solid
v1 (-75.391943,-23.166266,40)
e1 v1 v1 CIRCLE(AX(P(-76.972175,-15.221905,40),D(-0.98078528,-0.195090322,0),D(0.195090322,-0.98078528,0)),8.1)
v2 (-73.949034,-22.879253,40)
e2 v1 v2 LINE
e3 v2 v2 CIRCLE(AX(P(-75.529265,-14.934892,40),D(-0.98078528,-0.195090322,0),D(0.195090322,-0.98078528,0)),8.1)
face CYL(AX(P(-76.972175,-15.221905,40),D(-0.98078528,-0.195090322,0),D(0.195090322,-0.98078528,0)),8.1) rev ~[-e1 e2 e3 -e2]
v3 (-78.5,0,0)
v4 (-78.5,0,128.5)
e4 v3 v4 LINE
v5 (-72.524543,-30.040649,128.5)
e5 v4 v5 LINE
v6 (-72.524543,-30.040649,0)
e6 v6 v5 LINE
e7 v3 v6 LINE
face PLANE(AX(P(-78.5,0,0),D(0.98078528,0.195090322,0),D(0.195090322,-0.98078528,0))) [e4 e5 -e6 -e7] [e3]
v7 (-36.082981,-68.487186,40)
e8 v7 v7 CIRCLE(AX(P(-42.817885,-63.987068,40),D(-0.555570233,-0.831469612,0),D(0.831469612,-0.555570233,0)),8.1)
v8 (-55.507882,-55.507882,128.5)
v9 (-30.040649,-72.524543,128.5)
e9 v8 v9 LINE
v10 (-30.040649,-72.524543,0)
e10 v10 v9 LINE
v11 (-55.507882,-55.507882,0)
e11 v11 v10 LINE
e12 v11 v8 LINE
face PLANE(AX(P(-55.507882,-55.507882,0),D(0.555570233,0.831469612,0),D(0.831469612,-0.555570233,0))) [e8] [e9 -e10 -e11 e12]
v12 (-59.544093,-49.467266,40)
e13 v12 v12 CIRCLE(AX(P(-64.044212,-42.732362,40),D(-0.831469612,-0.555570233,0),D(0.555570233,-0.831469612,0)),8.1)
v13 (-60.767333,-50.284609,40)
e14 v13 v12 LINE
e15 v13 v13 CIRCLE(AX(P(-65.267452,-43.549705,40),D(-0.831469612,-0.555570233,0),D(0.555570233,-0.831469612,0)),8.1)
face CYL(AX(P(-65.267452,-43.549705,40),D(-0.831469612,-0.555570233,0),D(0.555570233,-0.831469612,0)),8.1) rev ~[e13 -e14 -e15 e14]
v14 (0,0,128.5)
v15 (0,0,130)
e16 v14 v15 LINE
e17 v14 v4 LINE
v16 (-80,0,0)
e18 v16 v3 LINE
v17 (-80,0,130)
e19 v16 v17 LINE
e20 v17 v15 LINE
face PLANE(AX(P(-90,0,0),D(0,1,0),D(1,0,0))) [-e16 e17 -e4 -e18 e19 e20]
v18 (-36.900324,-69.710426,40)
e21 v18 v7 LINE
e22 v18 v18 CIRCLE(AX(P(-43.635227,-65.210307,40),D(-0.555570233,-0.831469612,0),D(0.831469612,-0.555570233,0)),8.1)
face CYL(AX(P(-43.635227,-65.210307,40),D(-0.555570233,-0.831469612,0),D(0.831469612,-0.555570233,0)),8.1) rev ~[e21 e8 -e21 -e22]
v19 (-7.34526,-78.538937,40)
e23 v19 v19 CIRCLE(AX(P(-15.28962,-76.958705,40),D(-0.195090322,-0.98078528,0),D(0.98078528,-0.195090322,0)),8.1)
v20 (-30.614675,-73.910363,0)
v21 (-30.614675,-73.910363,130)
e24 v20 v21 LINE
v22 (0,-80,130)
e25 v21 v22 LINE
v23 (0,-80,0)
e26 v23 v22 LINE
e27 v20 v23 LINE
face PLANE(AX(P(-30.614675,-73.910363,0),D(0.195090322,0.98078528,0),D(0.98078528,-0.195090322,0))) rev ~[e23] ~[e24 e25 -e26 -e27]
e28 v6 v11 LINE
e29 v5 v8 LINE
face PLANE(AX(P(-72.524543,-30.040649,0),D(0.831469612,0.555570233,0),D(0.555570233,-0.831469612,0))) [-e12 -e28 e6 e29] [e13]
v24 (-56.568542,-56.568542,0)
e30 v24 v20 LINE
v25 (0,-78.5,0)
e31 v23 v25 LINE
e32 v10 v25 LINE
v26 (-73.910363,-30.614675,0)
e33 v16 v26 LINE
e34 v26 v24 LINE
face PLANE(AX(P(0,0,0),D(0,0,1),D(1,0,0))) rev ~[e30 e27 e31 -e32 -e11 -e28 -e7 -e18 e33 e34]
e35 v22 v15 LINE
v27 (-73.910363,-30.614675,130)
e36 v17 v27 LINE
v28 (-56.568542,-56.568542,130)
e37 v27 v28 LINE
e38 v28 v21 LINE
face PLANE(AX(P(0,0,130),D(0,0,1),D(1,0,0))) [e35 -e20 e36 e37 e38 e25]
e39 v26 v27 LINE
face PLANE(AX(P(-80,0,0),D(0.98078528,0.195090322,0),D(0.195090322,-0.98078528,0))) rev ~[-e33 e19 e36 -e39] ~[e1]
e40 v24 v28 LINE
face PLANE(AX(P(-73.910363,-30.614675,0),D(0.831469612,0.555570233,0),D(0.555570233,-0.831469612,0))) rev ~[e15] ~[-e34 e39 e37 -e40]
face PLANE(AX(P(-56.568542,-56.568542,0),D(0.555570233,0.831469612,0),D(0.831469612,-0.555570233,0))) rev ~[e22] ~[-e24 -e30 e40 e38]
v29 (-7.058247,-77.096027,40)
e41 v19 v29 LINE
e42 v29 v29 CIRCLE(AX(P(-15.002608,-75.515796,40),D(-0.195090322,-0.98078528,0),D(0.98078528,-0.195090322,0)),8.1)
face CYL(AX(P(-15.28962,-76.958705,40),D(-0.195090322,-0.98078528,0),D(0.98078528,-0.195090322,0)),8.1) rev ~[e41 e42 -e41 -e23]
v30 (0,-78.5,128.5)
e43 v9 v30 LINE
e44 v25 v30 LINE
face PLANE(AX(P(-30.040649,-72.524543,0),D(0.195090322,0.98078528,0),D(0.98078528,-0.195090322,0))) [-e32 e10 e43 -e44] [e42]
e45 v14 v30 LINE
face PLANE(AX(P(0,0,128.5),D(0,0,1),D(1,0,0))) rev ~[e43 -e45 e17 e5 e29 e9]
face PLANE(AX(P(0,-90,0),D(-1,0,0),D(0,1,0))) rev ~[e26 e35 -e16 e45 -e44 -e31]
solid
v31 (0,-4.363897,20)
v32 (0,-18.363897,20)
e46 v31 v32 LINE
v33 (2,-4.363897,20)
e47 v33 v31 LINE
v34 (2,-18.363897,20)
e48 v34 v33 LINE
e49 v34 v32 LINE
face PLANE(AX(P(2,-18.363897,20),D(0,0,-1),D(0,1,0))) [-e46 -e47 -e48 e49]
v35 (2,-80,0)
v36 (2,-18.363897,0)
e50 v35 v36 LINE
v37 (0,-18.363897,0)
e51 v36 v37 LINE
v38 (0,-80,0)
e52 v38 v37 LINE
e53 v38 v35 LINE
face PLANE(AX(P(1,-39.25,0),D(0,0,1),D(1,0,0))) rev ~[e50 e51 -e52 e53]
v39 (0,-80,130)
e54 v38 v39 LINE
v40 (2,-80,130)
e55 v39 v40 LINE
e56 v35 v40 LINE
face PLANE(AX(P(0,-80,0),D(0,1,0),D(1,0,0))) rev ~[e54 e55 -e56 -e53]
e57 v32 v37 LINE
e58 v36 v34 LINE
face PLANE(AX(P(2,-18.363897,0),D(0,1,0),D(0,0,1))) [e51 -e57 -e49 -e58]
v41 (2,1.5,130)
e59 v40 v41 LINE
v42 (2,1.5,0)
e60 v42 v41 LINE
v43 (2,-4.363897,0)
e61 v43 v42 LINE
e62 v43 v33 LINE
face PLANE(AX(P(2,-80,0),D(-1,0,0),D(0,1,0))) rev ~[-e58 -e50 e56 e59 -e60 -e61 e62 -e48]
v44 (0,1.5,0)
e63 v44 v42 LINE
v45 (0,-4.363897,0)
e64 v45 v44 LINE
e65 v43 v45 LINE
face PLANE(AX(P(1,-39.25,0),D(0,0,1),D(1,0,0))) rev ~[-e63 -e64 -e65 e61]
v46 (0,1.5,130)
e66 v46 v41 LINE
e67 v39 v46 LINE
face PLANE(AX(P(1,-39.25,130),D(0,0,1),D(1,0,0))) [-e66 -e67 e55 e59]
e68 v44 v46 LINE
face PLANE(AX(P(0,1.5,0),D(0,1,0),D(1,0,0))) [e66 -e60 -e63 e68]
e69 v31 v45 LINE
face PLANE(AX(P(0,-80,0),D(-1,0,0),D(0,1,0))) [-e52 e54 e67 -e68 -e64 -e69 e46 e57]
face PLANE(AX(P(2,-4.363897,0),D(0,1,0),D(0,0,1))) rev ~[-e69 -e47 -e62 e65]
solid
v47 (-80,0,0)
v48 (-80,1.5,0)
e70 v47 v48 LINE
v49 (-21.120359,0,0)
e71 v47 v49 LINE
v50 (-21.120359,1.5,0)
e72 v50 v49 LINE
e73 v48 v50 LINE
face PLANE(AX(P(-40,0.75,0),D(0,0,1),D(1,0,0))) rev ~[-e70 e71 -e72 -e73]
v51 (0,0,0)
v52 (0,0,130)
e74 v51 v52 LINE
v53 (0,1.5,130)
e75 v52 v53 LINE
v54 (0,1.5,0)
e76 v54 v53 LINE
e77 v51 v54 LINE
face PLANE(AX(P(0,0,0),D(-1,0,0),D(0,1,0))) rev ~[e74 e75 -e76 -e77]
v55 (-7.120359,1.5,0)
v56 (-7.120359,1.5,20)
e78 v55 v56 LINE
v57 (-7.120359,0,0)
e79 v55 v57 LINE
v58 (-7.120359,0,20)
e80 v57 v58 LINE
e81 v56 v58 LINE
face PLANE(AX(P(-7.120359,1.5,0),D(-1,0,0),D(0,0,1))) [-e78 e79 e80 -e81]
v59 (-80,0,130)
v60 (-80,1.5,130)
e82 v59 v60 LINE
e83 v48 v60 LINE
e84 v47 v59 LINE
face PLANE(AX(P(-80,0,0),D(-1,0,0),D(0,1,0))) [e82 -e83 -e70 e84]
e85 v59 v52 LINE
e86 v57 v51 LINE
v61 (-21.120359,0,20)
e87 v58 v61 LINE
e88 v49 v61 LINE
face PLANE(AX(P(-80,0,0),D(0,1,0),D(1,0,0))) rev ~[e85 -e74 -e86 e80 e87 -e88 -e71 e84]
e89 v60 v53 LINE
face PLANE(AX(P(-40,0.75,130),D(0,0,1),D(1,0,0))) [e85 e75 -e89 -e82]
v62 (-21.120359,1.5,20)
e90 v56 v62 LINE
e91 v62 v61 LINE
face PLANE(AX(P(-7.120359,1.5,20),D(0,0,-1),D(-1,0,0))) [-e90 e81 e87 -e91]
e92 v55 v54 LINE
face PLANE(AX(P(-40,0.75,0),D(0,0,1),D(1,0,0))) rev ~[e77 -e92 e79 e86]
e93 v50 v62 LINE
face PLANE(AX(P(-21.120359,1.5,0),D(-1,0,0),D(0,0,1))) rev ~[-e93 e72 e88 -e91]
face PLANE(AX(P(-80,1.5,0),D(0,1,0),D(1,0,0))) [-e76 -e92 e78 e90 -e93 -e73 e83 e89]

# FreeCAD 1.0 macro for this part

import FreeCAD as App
import Part
import Sketcher
from FreeCAD import Vector
Q = App.Units.Quantity


def add_polygon(sketch, points):
    """Adds a closed chain of lines whose ends are joined by coincident constraints."""
    first, n = sketch.GeometryCount, len(points)
    for a, b in zip(points, points[1:] + points[:1]):
        sketch.addGeometry(Part.LineSegment(App.Vector(*a, 0), App.Vector(*b, 0)), False)
    for i in range(n):
        sketch.addConstraint(Sketcher.Constraint("Coincident", first + i, 2, first + (i + 1) % n, 1))

doc = App.newDocument("Part")
body = doc.addObject("PartDesign::Body", "Body")

# Sketch on XY plane
sketch1 = doc.addObject("Sketcher::SketchObject", "Sketch")
body.addObject(sketch1)
sketch1.AttachmentSupport = (doc.XY_Plane, [""])
sketch1.MapMode = "FlatFace"
add_polygon(sketch1, [(-90, 90), (-90, 0), (0, 0), (0, 90)])  # lines 0-3
sketch1.addConstraint([
    Sketcher.Constraint("Vertical", 0),
    Sketcher.Constraint("Horizontal", 1),
    Sketcher.Constraint("Vertical", 2),
    Sketcher.Constraint("Horizontal", 3),
    Sketcher.Constraint("Coincident", 1, 2, -1, 1),
    Sketcher.Constraint("Equal", 3, 0),
    Sketcher.Constraint("DistanceX", 1, 1, 1, 2, Q("90 mm")),
])
pad1 = doc.addObject("PartDesign::Pad", "Pad")
body.addObject(pad1)
pad1.Profile = sketch1
pad1.Length = 130
body2 = doc.addObject("PartDesign::Body", "Body001")

# Sketch on XY plane
sketch2 = doc.addObject("Sketcher::SketchObject", "Sketch001")
body2.addObject(sketch2)
sketch2.AttachmentSupport = (doc.getObject("XY_Plane001"), [""])
sketch2.MapMode = "FlatFace"
add_polygon(sketch2, [(0, 90), (0, -90), (90, -90), (90, 90)])  # lines 0-3
sketch2.addConstraint([
    Sketcher.Constraint("Vertical", 0),
    Sketcher.Constraint("Horizontal", 1),
    Sketcher.Constraint("Vertical", 2),
    Sketcher.Constraint("Horizontal", 3),
    Sketcher.Constraint("Symmetric", 0, 2, 3, 2, -1, 1),
    Sketcher.Constraint("DistanceX", 1, 1, 1, 2, Q("90 mm")),
    Sketcher.Constraint("DistanceY", 0, 2, 0, 1, Q("180 mm")),
])
pad2 = doc.addObject("PartDesign::Pad", "Pad001")
body2.addObject(pad2)
pad2.Profile = sketch2
pad2.Length = 130
body3 = doc.addObject("PartDesign::Body", "Body002")

# Sketch on XY plane
sketch3 = doc.addObject("Sketcher::SketchObject", "Sketch002")
body3.addObject(sketch3)
sketch3.AttachmentSupport = (doc.getObject("XY_Plane002"), [""])
sketch3.MapMode = "FlatFace"
add_polygon(sketch3, [(78, 0), (73, 30), (56, 56), (30, 73), (0, 78), (-30, 73), (-56, 56), (-73, 30), (-78, 0), (-73, -30), (-56, -56), (-30, -73), (0, -78), (30, -73), (56, -56), (73, -30)])  # lines 0-15
sketch3.addConstraint([
    Sketcher.Constraint("Symmetric", 0, 2, 8, 2, -1, 1),
    Sketcher.Constraint("Symmetric", 1, 2, 9, 2, -1, 1),
    Sketcher.Constraint("Symmetric", 2, 2, 10, 2, -1, 1),
    Sketcher.Constraint("Symmetric", 3, 2, 11, 2, -1, 1),
    Sketcher.Constraint("Symmetric", 4, 2, 12, 2, -1, 1),
    Sketcher.Constraint("Symmetric", 5, 2, 13, 2, -1, 1),
    Sketcher.Constraint("Symmetric", 6, 2, 14, 2, -1, 1),
    Sketcher.Constraint("Symmetric", 7, 2, 15, 2, -1, 1),
    Sketcher.Constraint("Symmetric", 2, 2, 4, 2, -2),
    Sketcher.Constraint("Symmetric", 1, 2, 5, 2, -2),
    Sketcher.Constraint("Symmetric", 0, 2, 6, 2, -2),
    Sketcher.Constraint("PointOnObject", 3, 2, -2),
    Sketcher.Constraint("PointOnObject", 7, 2, -1),
    Sketcher.Constraint("Perpendicular", 0, 4),
    Sketcher.Constraint("Perpendicular", 1, 5),
    Sketcher.Constraint("Equal", 0, 1),
    Sketcher.Constraint("Equal", 1, 2),
    Sketcher.Constraint("Equal", 2, 3),
    Sketcher.Constraint("DistanceY", -1, 1, 3, 2, Q("78.5 mm")),
    Sketcher.Constraint("Angle", 0, Q("101.25 deg")),
    Sketcher.Constraint("Angle", 1, Q("123.75 deg")),
])
pad3 = doc.addObject("PartDesign::Pad", "Pad002")
body3.addObject(pad3)
pad3.Profile = sketch3
pad3.Length = 128.5
body4 = doc.addObject("PartDesign::Body", "Body003")

# Sketch on XY plane
sketch4 = doc.addObject("Sketcher::SketchObject", "Sketch003")
body4.addObject(sketch4)
sketch4.AttachmentSupport = (doc.getObject("XY_Plane003"), [""])
sketch4.MapMode = "FlatFace"
add_polygon(sketch4, [(80, 0), (74, 31), (57, 57), (31, 74), (0, 80), (-31, 74), (-57, 57), (-74, 31), (-80, 0), (-74, -31), (-57, -57), (-31, -74), (0, -80), (31, -74), (57, -57), (74, -31)])  # lines 0-15
sketch4.addConstraint([
    Sketcher.Constraint("Symmetric", 0, 2, 8, 2, -1, 1),
    Sketcher.Constraint("Symmetric", 1, 2, 9, 2, -1, 1),
    Sketcher.Constraint("Symmetric", 2, 2, 10, 2, -1, 1),
    Sketcher.Constraint("Symmetric", 3, 2, 11, 2, -1, 1),
    Sketcher.Constraint("Symmetric", 4, 2, 12, 2, -1, 1),
    Sketcher.Constraint("Symmetric", 5, 2, 13, 2, -1, 1),
    Sketcher.Constraint("Symmetric", 6, 2, 14, 2, -1, 1),
    Sketcher.Constraint("Symmetric", 7, 2, 15, 2, -1, 1),
    Sketcher.Constraint("Symmetric", 2, 2, 4, 2, -2),
    Sketcher.Constraint("Symmetric", 1, 2, 5, 2, -2),
    Sketcher.Constraint("Symmetric", 0, 2, 6, 2, -2),
    Sketcher.Constraint("PointOnObject", 3, 2, -2),
    Sketcher.Constraint("PointOnObject", 7, 2, -1),
    Sketcher.Constraint("Perpendicular", 0, 4),
    Sketcher.Constraint("Perpendicular", 1, 5),
    Sketcher.Constraint("Equal", 0, 1),
    Sketcher.Constraint("Equal", 1, 2),
    Sketcher.Constraint("Equal", 2, 3),
    Sketcher.Constraint("DistanceY", -1, 1, 3, 2, Q("80 mm")),
    Sketcher.Constraint("Angle", 0, Q("101.25 deg")),
    Sketcher.Constraint("Angle", 1, Q("123.75 deg")),
])
pad4 = doc.addObject("PartDesign::Pad", "Pad003")
body4.addObject(pad4)
pad4.Profile = sketch4
pad4.Length = 130
doc.recompute()

boolean = doc.addObject("PartDesign::Boolean", "Boolean")
body4.addObject(boolean)
boolean.Type = "Cut"
boolean.addObjects([body3])
doc.recompute()

boolean2 = doc.addObject("PartDesign::Boolean", "Boolean001")
body4.addObject(boolean2)
boolean2.Type = "Cut"
boolean2.addObjects([body2])
doc.recompute()

boolean3 = doc.addObject("PartDesign::Boolean", "Boolean002")
body4.addObject(boolean3)
boolean3.Type = "Cut"
boolean3.addObjects([body])

# Sketch on an angled plane
sketch5 = doc.addObject("Sketcher::SketchObject", "Sketch004")
body4.addObject(sketch5)
sketch5.Placement = App.Placement(Vector(-76.955181, -15.307337, 0), App.Rotation(Vector(0.195090322, -0.98078528, 0), Vector(0, 0, 0.999999999), Vector(-0.98078528, -0.195090322, 0), "ZXY"))
sketch5.addGeometry(Part.Circle(Vector(0, 40, 0), Vector(0, 0, 1), 8), False)
sketch5.addConstraint([
    Sketcher.Constraint("Diameter", 0, Q("16.2 mm")),
    Sketcher.Constraint("DistanceY", -1, 1, 0, 3, Q("40 mm")),
    Sketcher.Constraint("DistanceX", 0, 3, -1, 1, Q("0.087106 mm")),
])
pocket1 = doc.addObject("PartDesign::Pocket", "Pocket")
body4.addObject(pocket1)
pocket1.Profile = sketch5
pocket1.Length = 3

# Sketch on an angled plane
sketch6 = doc.addObject("Sketcher::SketchObject", "Sketch005")
body4.addObject(sketch6)
sketch6.Placement = App.Placement(Vector(-65.239453, -43.591609, 0), App.Rotation(Vector(0.555570233, -0.831469612, 0), Vector(0, 0, 0.999999999), Vector(-0.831469612, -0.555570233, 0), "ZXY"))
sketch6.addGeometry(Part.Circle(Vector(0, 40, 0), Vector(0, 0, 1), 8), False)
sketch6.addConstraint([
    Sketcher.Constraint("Diameter", 0, Q("16.2 mm")),
    Sketcher.Constraint("DistanceY", -1, 1, 0, 3, Q("40 mm")),
    Sketcher.Constraint("DistanceX", 0, 3, -1, 1, Q("0.050397 mm")),
])
pocket2 = doc.addObject("PartDesign::Pocket", "Pocket001")
body4.addObject(pocket2)
pocket2.Profile = sketch6
pocket2.Length = 3

# Sketch on an angled plane
sketch7 = doc.addObject("Sketcher::SketchObject", "Sketch006")
body4.addObject(sketch7)
sketch7.Placement = App.Placement(Vector(-43.591609, -65.239453, 0), App.Rotation(Vector(0.831469612, -0.555570233, 0), Vector(0, 0, 0.999999999), Vector(-0.555570233, -0.831469612, 0), "ZXY"))
sketch7.addGeometry(Part.Circle(Vector(0, 40, 0), Vector(0, 0, 1), 8), False)
sketch7.addConstraint([
    Sketcher.Constraint("Diameter", 0, Q("16.2 mm")),
    Sketcher.Constraint("DistanceY", -1, 1, 0, 3, Q("40 mm")),
    Sketcher.Constraint("DistanceX", 0, 3, -1, 1, Q("0.05246 mm")),
])
pocket3 = doc.addObject("PartDesign::Pocket", "Pocket002")
body4.addObject(pocket3)
pocket3.Profile = sketch7
pocket3.Length = 3

# Sketch on an angled plane
sketch8 = doc.addObject("Sketcher::SketchObject", "Sketch007")
body4.addObject(sketch8)
sketch8.Placement = App.Placement(Vector(-15.307337, -76.955181, 0), App.Rotation(Vector(0.98078528, -0.195090322, 0), Vector(0, 0, 0.999999999), Vector(-0.195090322, -0.98078528, 0), "ZXY"))
sketch8.addGeometry(Part.Circle(Vector(0, 40, 0), Vector(0, 0, 1), 8), False)
sketch8.addConstraint([
    Sketcher.Constraint("Diameter", 0, Q("16.2 mm")),
    Sketcher.Constraint("DistanceY", -1, 1, 0, 3, Q("40 mm")),
    Sketcher.Constraint("DistanceX", -1, 1, 0, 3, Q("0.018064 mm")),
])
pocket4 = doc.addObject("PartDesign::Pocket", "Pocket003")
body4.addObject(pocket4)
pocket4.Profile = sketch8
pocket4.Length = 3
body5 = doc.addObject("PartDesign::Body", "Body004")

# Sketch on XY plane
sketch9 = doc.addObject("Sketcher::SketchObject", "Sketch008")
body5.addObject(sketch9)
sketch9.AttachmentSupport = (doc.getObject("XY_Plane004"), [""])
sketch9.MapMode = "FlatFace"
add_polygon(sketch9, [(0, 1.5), (0, -80), (2, -80), (2, 1.5)])  # lines 0-3
sketch9.addConstraint([
    Sketcher.Constraint("Vertical", 0),
    Sketcher.Constraint("Horizontal", 1),
    Sketcher.Constraint("Vertical", 2),
    Sketcher.Constraint("Horizontal", 3),
    Sketcher.Constraint("PointOnObject", 0, 2, -2),
    Sketcher.Constraint("DistanceX", 1, 1, 1, 2, Q("2 mm")),
    Sketcher.Constraint("DistanceY", 0, 2, 0, 1, Q("81.5 mm")),
    Sketcher.Constraint("DistanceY", 0, 2, -1, 1, Q("80 mm")),
])
pad5 = doc.addObject("PartDesign::Pad", "Pad004")
body5.addObject(pad5)
pad5.Profile = sketch9
pad5.Length = 130

# Sketch on YZ plane
sketch10 = doc.addObject("Sketcher::SketchObject", "Sketch009")
body5.addObject(sketch10)
sketch10.AttachmentSupport = (doc.getObject("YZ_Plane004"), [""])
sketch10.MapMode = "FlatFace"
sketch10.AttachmentOffset = App.Placement(Vector(0, 0, 2), App.Rotation())
add_polygon(sketch10, [(-18, 20), (-18, 0), (-4, 0), (-4, 20)])  # lines 0-3
sketch10.addConstraint([
    Sketcher.Constraint("Vertical", 0),
    Sketcher.Constraint("Horizontal", 1),
    Sketcher.Constraint("Vertical", 2),
    Sketcher.Constraint("Horizontal", 3),
    Sketcher.Constraint("PointOnObject", 0, 2, -1),
    Sketcher.Constraint("DistanceX", 1, 1, 1, 2, Q("14 mm")),
    Sketcher.Constraint("DistanceY", 0, 2, 0, 1, Q("20 mm")),
    Sketcher.Constraint("DistanceX", 0, 2, -1, 1, Q("18.363897 mm")),
])
pocket5 = doc.addObject("PartDesign::Pocket", "Pocket004")
body5.addObject(pocket5)
pocket5.Profile = sketch10
pocket5.Length = 3
body6 = doc.addObject("PartDesign::Body", "Body005")

# Sketch on XY plane
sketch11 = doc.addObject("Sketcher::SketchObject", "Sketch010")
body6.addObject(sketch11)
sketch11.AttachmentSupport = (doc.getObject("XY_Plane005"), [""])
sketch11.MapMode = "FlatFace"
add_polygon(sketch11, [(-80, 1.5), (-80, 0), (0, 0), (0, 1.5)])  # lines 0-3
sketch11.addConstraint([
    Sketcher.Constraint("Vertical", 0),
    Sketcher.Constraint("Horizontal", 1),
    Sketcher.Constraint("Vertical", 2),
    Sketcher.Constraint("Horizontal", 3),
    Sketcher.Constraint("Coincident", 1, 2, -1, 1),
    Sketcher.Constraint("DistanceX", 1, 1, 1, 2, Q("80 mm")),
    Sketcher.Constraint("DistanceY", 0, 2, 0, 1, Q("1.5 mm")),
])
pad6 = doc.addObject("PartDesign::Pad", "Pad005")
body6.addObject(pad6)
pad6.Profile = sketch11
pad6.Length = 130

# Sketch on XZ plane
sketch12 = doc.addObject("Sketcher::SketchObject", "Sketch011")
body6.addObject(sketch12)
sketch12.AttachmentSupport = (doc.getObject("XZ_Plane005"), [""])
sketch12.MapMode = "FlatFace"
sketch12.AttachmentOffset = App.Placement(Vector(0, 0, -1.5), App.Rotation())
add_polygon(sketch12, [(-7, 20), (-7, 0), (-21, 0), (-21, 20)])  # lines 0-3
sketch12.addConstraint([
    Sketcher.Constraint("Vertical", 0),
    Sketcher.Constraint("Horizontal", 1),
    Sketcher.Constraint("Vertical", 2),
    Sketcher.Constraint("Horizontal", 3),
    Sketcher.Constraint("PointOnObject", 0, 2, -1),
    Sketcher.Constraint("DistanceX", 1, 2, 1, 1, Q("14 mm")),
    Sketcher.Constraint("DistanceY", 0, 2, 0, 1, Q("20 mm")),
    Sketcher.Constraint("DistanceX", 0, 2, -1, 1, Q("7.120359 mm")),
])
pocket6 = doc.addObject("PartDesign::Pocket", "Pocket005")
body6.addObject(pocket6)
pocket6.Profile = sketch12
pocket6.Length = 2
pocket6.Reversed = True

doc.recompute()
